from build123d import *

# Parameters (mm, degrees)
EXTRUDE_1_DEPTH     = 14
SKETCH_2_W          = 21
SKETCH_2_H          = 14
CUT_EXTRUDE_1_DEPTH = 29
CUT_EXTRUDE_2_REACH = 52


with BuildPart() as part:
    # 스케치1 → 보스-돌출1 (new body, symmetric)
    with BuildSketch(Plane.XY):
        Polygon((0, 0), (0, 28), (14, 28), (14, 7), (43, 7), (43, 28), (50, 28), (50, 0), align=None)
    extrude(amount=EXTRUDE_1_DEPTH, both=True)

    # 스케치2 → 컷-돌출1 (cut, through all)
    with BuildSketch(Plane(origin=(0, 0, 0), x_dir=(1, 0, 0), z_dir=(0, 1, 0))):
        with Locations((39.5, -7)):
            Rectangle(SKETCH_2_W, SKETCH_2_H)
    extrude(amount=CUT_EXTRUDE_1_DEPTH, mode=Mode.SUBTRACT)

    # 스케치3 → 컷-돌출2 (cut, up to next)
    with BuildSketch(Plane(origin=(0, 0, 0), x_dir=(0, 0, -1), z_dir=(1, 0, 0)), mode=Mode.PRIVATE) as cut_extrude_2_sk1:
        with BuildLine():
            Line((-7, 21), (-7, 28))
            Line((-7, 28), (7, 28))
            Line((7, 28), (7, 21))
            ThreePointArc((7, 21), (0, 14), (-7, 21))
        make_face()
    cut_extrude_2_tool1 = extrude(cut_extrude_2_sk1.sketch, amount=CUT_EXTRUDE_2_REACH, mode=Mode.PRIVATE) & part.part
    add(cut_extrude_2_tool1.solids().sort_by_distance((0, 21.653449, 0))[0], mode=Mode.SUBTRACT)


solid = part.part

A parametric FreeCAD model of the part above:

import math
import FreeCAD as App
import Part
import Sketcher

V = App.Vector


def add_polygon(sketch, points):
    """Adds a closed chain of lines whose ends are joined by coincident constraints."""
    first, n = sketch.GeometryCount, len(points)
    for a, b in zip(points, points[1:] + points[:1]):
        sketch.addGeometry(Part.LineSegment(App.Vector(*a, 0), App.Vector(*b, 0)), False)
    for i in range(n):
        sketch.addConstraint(Sketcher.Constraint("Coincident", first + i, 2, first + (i + 1) % n, 1))

doc = App.newDocument("Part")
body = doc.addObject("PartDesign::Body", "Body")

sketch1 = doc.addObject("Sketcher::SketchObject", "Sketch")
body.addObject(sketch1)
sketch1.AttachmentSupport = (doc.XY_Plane, [""])
sketch1.MapMode = "FlatFace"
add_polygon(sketch1, [(0, 28), (0, 0), (50, 0), (50, 28), (43, 28), (43, 7), (14, 7), (14, 28)])
sketch1.addConstraint([
    Sketcher.Constraint("Vertical", 0),
    Sketcher.Constraint("Horizontal", 1),
    Sketcher.Constraint("Vertical", 2),
    Sketcher.Constraint("Horizontal", 3),
    Sketcher.Constraint("Vertical", 4),
    Sketcher.Constraint("Horizontal", 5),
    Sketcher.Constraint("Vertical", 6),
    Sketcher.Constraint("Horizontal", 7),
    Sketcher.Constraint("Coincident", 0, 2, -1, 1),
    Sketcher.Constraint("Horizontal", 3, 2, 6, 2),
    Sketcher.Constraint("DistanceX", 1, 1, 1, 2, 50.0),
    Sketcher.Constraint("DistanceX", 3, 2, 3, 1, 7.0),
    Sketcher.Constraint("DistanceX", 5, 2, 5, 1, 29.0),
    Sketcher.Constraint("DistanceY", 0, 2, 0, 1, 28.0),
    Sketcher.Constraint("DistanceY", 4, 2, 4, 1, 21.0),
])
pad1 = doc.addObject("PartDesign::Pad", "Pad")
body.addObject(pad1)
pad1.Profile = sketch1
pad1.Length = 28
pad1.Midplane = True

sketch2 = doc.addObject("Sketcher::SketchObject", "Sketch001")
body.addObject(sketch2)
sketch2.AttachmentSupport = (doc.XZ_Plane, [""])
sketch2.MapMode = "FlatFace"
add_polygon(sketch2, [(29, 0), (29, 14), (50, 14), (50, 0)])
sketch2.addConstraint([
    Sketcher.Constraint("Vertical", 0),
    Sketcher.Constraint("Horizontal", 1),
    Sketcher.Constraint("Vertical", 2),
    Sketcher.Constraint("Horizontal", 3),
    Sketcher.Constraint("PointOnObject", 2, 2, -1),
    Sketcher.Constraint("DistanceX", 1, 1, 1, 2, 21.0),
    Sketcher.Constraint("DistanceY", 0, 1, 0, 2, 14.0),
    Sketcher.Constraint("DistanceX", -1, 1, 0, 2, 29.0),
])
pocket1 = doc.addObject("PartDesign::Pocket", "Pocket")
body.addObject(pocket1)
pocket1.Profile = sketch2
pocket1.Type = "ThroughAll"

sketch3 = doc.addObject("Sketcher::SketchObject", "Sketch002")
body.addObject(sketch3)
sketch3.AttachmentSupport = (doc.YZ_Plane, [""])
sketch3.MapMode = "FlatFace"
sketch3.addGeometry([
    Part.LineSegment(V(28, 7, 0), V(21, 7, 0)),
    Part.ArcOfCircle(Part.Circle(V(21, 0, 0), V(0, 0, 1), 7), math.radians(90), math.radians(270)),
    Part.LineSegment(V(21, -7, 0), V(28, -7, 0)),
    Part.LineSegment(V(28, -7, 0), V(28, 7, 0)),
], False)
sketch3.addConstraint([
    Sketcher.Constraint("Tangent", 0, 2, 1, 1),
    Sketcher.Constraint("Tangent", 1, 2, 2, 1),
    Sketcher.Constraint("Coincident", 2, 2, 3, 1),
    Sketcher.Constraint("Coincident", 3, 2, 0, 1),
    Sketcher.Constraint("Horizontal", 0),
    Sketcher.Constraint("Horizontal", 2),
    Sketcher.Constraint("Vertical", 3),
    Sketcher.Constraint("PointOnObject", 1, 3, -1),
    Sketcher.Constraint("Radius", 1, 7.0),
    Sketcher.Constraint("DistanceX", 0, 2, 0, 1, 7.0),
    Sketcher.Constraint("DistanceX", -1, 1, 1, 3, 21.0),
])
pocket2 = doc.addObject("PartDesign::Pocket", "Pocket001")
body.addObject(pocket2)
pocket2.Profile = sketch3
pocket2.Type = "UpToFirst"
pocket2.Reversed = True

doc.recompute()
